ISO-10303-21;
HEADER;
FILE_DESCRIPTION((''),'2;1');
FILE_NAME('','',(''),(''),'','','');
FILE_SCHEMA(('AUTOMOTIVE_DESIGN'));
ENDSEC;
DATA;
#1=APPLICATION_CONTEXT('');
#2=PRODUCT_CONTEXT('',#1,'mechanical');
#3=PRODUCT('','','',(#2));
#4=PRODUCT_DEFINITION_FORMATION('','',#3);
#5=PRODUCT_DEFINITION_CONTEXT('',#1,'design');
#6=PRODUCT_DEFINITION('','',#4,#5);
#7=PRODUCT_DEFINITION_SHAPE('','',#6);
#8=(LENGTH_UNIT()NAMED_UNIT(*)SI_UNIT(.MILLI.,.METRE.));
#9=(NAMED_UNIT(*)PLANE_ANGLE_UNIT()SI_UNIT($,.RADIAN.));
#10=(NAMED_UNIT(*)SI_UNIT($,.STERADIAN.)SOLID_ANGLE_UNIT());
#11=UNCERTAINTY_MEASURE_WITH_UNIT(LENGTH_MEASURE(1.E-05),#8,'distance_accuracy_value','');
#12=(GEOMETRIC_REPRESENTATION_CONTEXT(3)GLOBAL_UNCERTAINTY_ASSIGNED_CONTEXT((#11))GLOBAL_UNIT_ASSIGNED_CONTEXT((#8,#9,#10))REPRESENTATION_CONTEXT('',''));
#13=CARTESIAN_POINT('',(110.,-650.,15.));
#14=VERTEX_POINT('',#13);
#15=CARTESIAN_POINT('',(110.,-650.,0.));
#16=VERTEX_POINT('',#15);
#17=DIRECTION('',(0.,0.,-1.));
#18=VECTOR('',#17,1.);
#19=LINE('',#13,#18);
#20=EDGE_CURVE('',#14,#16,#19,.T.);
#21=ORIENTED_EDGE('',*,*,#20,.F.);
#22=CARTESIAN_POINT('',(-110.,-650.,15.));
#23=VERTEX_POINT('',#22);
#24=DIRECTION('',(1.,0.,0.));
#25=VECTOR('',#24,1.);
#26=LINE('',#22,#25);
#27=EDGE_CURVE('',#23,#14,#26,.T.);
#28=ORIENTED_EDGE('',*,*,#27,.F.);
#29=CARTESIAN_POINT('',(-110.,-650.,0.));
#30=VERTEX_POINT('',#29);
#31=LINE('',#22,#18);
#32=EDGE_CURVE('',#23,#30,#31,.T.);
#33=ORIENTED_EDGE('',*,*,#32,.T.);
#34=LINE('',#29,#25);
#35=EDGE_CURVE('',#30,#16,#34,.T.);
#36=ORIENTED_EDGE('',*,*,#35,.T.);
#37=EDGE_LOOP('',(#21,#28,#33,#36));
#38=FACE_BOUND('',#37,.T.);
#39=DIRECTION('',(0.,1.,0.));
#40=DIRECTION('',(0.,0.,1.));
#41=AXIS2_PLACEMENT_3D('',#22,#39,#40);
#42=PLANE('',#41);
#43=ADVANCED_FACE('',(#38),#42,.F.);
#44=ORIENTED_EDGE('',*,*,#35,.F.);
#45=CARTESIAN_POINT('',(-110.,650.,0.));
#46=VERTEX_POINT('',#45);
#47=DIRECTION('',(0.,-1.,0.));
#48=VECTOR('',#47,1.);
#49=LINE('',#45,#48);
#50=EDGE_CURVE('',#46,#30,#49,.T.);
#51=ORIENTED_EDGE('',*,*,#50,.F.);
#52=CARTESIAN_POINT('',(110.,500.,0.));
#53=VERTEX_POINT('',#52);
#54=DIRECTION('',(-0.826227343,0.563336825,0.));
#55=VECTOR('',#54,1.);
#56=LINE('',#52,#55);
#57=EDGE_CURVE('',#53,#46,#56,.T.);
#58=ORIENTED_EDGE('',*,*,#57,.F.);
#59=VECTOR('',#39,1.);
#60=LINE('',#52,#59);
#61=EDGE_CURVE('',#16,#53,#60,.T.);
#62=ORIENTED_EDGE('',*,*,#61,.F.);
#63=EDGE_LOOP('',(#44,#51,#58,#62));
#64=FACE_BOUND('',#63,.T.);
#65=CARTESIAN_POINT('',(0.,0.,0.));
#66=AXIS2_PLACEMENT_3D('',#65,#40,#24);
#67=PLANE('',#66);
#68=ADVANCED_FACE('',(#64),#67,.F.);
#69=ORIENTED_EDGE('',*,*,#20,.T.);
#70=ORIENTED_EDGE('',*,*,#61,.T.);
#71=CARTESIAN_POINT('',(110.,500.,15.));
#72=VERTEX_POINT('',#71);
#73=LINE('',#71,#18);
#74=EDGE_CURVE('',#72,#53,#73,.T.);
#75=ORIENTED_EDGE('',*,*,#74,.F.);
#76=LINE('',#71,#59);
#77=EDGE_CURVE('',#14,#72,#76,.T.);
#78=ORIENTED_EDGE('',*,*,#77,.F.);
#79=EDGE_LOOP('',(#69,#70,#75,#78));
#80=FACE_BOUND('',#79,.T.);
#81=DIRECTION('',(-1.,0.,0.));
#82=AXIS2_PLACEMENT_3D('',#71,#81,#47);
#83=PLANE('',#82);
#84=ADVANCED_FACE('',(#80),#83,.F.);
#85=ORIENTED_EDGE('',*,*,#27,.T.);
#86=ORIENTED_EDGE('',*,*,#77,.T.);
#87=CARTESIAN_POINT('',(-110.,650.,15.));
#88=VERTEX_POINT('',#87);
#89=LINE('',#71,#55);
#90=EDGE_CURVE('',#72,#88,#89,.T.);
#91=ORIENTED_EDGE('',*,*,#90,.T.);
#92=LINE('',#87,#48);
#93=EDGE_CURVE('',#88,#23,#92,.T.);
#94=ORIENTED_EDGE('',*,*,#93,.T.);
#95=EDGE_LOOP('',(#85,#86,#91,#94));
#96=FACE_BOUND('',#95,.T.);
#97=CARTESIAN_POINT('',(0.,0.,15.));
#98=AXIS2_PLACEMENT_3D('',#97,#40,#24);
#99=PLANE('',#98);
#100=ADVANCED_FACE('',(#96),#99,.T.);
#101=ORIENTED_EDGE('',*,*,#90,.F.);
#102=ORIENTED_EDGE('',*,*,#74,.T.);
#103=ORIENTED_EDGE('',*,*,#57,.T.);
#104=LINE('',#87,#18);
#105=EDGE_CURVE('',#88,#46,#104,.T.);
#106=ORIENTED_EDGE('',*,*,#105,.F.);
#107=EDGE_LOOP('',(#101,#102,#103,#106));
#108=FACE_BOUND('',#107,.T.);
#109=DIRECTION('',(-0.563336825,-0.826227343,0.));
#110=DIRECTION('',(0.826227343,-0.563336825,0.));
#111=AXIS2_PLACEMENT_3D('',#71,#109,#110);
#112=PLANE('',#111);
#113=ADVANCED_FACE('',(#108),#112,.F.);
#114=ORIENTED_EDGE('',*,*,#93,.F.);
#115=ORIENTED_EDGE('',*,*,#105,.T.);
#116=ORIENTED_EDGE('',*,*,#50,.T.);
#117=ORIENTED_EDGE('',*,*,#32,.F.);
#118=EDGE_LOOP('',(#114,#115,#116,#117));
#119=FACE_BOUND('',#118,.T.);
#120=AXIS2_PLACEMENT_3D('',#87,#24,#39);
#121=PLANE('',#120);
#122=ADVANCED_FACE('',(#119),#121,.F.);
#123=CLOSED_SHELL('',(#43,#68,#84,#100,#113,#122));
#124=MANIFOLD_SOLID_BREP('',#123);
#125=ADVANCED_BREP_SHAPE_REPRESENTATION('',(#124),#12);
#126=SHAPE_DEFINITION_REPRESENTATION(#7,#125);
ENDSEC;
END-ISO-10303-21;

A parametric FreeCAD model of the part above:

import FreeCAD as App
import Part
import Sketcher

V = App.Vector
Q = App.Units.Quantity


def add_polygon(sketch, points):
    """Adds a closed chain of lines whose ends are joined by coincident constraints."""
    first, n = sketch.GeometryCount, len(points)
    for a, b in zip(points, points[1:] + points[:1]):
        sketch.addGeometry(Part.LineSegment(App.Vector(*a, 0), App.Vector(*b, 0)), False)
    for i in range(n):
        sketch.addConstraint(Sketcher.Constraint("Coincident", first + i, 2, first + (i + 1) % n, 1))

doc = App.newDocument("Part")
params = doc.addObject("Spreadsheet::Sheet", "Params")
for row, (alias, value) in enumerate([
    ("sketch1_width", "220 mm"),
    ("sketch1_height", "1300 mm"),
    ("sketch1_height2", "1150 mm"),
    ("pad1_length", "15 mm"),
], start=1):
    params.set(f"A{row}", alias)
    params.set(f"B{row}", "=" + value)
    params.setAlias(f"B{row}", alias)

body = doc.addObject("PartDesign::Body", "Body")

# Sketch on XY plane
sketch1 = body.newObject("Sketcher::SketchObject", "Sketch")
sketch1.AttachmentSupport = (doc.getObject("XY_Plane"), [""])
sketch1.MapMode = "FlatFace"
add_polygon(sketch1, [(-110, 650), (-110, -650), (110, -650), (110, 500)])  # lines 0-3
sketch1.addConstraint([
    Sketcher.Constraint("Vertical", 0),
    Sketcher.Constraint("Horizontal", 1),
    Sketcher.Constraint("Vertical", 2),
    Sketcher.Constraint("Symmetric", 1, 2, 3, 2, -1, 1),
    Sketcher.Constraint("DistanceX", 1, 1, 1, 2, Q("220 mm")),
    Sketcher.Constraint("DistanceY", 0, 2, 0, 1, Q("1300 mm")),
    Sketcher.Constraint("DistanceY", 2, 1, 2, 2, Q("1150 mm")),
])
sketch1.setExpression("Constraints[8]", "Params.sketch1_width")
sketch1.setExpression("Constraints[9]", "Params.sketch1_height")
sketch1.setExpression("Constraints[10]", "Params.sketch1_height2")
pad1 = body.newObject("PartDesign::Pad", "Pad")
pad1.Profile = sketch1
pad1.setExpression("Length", "Params.pad1_length")

doc.recompute()
